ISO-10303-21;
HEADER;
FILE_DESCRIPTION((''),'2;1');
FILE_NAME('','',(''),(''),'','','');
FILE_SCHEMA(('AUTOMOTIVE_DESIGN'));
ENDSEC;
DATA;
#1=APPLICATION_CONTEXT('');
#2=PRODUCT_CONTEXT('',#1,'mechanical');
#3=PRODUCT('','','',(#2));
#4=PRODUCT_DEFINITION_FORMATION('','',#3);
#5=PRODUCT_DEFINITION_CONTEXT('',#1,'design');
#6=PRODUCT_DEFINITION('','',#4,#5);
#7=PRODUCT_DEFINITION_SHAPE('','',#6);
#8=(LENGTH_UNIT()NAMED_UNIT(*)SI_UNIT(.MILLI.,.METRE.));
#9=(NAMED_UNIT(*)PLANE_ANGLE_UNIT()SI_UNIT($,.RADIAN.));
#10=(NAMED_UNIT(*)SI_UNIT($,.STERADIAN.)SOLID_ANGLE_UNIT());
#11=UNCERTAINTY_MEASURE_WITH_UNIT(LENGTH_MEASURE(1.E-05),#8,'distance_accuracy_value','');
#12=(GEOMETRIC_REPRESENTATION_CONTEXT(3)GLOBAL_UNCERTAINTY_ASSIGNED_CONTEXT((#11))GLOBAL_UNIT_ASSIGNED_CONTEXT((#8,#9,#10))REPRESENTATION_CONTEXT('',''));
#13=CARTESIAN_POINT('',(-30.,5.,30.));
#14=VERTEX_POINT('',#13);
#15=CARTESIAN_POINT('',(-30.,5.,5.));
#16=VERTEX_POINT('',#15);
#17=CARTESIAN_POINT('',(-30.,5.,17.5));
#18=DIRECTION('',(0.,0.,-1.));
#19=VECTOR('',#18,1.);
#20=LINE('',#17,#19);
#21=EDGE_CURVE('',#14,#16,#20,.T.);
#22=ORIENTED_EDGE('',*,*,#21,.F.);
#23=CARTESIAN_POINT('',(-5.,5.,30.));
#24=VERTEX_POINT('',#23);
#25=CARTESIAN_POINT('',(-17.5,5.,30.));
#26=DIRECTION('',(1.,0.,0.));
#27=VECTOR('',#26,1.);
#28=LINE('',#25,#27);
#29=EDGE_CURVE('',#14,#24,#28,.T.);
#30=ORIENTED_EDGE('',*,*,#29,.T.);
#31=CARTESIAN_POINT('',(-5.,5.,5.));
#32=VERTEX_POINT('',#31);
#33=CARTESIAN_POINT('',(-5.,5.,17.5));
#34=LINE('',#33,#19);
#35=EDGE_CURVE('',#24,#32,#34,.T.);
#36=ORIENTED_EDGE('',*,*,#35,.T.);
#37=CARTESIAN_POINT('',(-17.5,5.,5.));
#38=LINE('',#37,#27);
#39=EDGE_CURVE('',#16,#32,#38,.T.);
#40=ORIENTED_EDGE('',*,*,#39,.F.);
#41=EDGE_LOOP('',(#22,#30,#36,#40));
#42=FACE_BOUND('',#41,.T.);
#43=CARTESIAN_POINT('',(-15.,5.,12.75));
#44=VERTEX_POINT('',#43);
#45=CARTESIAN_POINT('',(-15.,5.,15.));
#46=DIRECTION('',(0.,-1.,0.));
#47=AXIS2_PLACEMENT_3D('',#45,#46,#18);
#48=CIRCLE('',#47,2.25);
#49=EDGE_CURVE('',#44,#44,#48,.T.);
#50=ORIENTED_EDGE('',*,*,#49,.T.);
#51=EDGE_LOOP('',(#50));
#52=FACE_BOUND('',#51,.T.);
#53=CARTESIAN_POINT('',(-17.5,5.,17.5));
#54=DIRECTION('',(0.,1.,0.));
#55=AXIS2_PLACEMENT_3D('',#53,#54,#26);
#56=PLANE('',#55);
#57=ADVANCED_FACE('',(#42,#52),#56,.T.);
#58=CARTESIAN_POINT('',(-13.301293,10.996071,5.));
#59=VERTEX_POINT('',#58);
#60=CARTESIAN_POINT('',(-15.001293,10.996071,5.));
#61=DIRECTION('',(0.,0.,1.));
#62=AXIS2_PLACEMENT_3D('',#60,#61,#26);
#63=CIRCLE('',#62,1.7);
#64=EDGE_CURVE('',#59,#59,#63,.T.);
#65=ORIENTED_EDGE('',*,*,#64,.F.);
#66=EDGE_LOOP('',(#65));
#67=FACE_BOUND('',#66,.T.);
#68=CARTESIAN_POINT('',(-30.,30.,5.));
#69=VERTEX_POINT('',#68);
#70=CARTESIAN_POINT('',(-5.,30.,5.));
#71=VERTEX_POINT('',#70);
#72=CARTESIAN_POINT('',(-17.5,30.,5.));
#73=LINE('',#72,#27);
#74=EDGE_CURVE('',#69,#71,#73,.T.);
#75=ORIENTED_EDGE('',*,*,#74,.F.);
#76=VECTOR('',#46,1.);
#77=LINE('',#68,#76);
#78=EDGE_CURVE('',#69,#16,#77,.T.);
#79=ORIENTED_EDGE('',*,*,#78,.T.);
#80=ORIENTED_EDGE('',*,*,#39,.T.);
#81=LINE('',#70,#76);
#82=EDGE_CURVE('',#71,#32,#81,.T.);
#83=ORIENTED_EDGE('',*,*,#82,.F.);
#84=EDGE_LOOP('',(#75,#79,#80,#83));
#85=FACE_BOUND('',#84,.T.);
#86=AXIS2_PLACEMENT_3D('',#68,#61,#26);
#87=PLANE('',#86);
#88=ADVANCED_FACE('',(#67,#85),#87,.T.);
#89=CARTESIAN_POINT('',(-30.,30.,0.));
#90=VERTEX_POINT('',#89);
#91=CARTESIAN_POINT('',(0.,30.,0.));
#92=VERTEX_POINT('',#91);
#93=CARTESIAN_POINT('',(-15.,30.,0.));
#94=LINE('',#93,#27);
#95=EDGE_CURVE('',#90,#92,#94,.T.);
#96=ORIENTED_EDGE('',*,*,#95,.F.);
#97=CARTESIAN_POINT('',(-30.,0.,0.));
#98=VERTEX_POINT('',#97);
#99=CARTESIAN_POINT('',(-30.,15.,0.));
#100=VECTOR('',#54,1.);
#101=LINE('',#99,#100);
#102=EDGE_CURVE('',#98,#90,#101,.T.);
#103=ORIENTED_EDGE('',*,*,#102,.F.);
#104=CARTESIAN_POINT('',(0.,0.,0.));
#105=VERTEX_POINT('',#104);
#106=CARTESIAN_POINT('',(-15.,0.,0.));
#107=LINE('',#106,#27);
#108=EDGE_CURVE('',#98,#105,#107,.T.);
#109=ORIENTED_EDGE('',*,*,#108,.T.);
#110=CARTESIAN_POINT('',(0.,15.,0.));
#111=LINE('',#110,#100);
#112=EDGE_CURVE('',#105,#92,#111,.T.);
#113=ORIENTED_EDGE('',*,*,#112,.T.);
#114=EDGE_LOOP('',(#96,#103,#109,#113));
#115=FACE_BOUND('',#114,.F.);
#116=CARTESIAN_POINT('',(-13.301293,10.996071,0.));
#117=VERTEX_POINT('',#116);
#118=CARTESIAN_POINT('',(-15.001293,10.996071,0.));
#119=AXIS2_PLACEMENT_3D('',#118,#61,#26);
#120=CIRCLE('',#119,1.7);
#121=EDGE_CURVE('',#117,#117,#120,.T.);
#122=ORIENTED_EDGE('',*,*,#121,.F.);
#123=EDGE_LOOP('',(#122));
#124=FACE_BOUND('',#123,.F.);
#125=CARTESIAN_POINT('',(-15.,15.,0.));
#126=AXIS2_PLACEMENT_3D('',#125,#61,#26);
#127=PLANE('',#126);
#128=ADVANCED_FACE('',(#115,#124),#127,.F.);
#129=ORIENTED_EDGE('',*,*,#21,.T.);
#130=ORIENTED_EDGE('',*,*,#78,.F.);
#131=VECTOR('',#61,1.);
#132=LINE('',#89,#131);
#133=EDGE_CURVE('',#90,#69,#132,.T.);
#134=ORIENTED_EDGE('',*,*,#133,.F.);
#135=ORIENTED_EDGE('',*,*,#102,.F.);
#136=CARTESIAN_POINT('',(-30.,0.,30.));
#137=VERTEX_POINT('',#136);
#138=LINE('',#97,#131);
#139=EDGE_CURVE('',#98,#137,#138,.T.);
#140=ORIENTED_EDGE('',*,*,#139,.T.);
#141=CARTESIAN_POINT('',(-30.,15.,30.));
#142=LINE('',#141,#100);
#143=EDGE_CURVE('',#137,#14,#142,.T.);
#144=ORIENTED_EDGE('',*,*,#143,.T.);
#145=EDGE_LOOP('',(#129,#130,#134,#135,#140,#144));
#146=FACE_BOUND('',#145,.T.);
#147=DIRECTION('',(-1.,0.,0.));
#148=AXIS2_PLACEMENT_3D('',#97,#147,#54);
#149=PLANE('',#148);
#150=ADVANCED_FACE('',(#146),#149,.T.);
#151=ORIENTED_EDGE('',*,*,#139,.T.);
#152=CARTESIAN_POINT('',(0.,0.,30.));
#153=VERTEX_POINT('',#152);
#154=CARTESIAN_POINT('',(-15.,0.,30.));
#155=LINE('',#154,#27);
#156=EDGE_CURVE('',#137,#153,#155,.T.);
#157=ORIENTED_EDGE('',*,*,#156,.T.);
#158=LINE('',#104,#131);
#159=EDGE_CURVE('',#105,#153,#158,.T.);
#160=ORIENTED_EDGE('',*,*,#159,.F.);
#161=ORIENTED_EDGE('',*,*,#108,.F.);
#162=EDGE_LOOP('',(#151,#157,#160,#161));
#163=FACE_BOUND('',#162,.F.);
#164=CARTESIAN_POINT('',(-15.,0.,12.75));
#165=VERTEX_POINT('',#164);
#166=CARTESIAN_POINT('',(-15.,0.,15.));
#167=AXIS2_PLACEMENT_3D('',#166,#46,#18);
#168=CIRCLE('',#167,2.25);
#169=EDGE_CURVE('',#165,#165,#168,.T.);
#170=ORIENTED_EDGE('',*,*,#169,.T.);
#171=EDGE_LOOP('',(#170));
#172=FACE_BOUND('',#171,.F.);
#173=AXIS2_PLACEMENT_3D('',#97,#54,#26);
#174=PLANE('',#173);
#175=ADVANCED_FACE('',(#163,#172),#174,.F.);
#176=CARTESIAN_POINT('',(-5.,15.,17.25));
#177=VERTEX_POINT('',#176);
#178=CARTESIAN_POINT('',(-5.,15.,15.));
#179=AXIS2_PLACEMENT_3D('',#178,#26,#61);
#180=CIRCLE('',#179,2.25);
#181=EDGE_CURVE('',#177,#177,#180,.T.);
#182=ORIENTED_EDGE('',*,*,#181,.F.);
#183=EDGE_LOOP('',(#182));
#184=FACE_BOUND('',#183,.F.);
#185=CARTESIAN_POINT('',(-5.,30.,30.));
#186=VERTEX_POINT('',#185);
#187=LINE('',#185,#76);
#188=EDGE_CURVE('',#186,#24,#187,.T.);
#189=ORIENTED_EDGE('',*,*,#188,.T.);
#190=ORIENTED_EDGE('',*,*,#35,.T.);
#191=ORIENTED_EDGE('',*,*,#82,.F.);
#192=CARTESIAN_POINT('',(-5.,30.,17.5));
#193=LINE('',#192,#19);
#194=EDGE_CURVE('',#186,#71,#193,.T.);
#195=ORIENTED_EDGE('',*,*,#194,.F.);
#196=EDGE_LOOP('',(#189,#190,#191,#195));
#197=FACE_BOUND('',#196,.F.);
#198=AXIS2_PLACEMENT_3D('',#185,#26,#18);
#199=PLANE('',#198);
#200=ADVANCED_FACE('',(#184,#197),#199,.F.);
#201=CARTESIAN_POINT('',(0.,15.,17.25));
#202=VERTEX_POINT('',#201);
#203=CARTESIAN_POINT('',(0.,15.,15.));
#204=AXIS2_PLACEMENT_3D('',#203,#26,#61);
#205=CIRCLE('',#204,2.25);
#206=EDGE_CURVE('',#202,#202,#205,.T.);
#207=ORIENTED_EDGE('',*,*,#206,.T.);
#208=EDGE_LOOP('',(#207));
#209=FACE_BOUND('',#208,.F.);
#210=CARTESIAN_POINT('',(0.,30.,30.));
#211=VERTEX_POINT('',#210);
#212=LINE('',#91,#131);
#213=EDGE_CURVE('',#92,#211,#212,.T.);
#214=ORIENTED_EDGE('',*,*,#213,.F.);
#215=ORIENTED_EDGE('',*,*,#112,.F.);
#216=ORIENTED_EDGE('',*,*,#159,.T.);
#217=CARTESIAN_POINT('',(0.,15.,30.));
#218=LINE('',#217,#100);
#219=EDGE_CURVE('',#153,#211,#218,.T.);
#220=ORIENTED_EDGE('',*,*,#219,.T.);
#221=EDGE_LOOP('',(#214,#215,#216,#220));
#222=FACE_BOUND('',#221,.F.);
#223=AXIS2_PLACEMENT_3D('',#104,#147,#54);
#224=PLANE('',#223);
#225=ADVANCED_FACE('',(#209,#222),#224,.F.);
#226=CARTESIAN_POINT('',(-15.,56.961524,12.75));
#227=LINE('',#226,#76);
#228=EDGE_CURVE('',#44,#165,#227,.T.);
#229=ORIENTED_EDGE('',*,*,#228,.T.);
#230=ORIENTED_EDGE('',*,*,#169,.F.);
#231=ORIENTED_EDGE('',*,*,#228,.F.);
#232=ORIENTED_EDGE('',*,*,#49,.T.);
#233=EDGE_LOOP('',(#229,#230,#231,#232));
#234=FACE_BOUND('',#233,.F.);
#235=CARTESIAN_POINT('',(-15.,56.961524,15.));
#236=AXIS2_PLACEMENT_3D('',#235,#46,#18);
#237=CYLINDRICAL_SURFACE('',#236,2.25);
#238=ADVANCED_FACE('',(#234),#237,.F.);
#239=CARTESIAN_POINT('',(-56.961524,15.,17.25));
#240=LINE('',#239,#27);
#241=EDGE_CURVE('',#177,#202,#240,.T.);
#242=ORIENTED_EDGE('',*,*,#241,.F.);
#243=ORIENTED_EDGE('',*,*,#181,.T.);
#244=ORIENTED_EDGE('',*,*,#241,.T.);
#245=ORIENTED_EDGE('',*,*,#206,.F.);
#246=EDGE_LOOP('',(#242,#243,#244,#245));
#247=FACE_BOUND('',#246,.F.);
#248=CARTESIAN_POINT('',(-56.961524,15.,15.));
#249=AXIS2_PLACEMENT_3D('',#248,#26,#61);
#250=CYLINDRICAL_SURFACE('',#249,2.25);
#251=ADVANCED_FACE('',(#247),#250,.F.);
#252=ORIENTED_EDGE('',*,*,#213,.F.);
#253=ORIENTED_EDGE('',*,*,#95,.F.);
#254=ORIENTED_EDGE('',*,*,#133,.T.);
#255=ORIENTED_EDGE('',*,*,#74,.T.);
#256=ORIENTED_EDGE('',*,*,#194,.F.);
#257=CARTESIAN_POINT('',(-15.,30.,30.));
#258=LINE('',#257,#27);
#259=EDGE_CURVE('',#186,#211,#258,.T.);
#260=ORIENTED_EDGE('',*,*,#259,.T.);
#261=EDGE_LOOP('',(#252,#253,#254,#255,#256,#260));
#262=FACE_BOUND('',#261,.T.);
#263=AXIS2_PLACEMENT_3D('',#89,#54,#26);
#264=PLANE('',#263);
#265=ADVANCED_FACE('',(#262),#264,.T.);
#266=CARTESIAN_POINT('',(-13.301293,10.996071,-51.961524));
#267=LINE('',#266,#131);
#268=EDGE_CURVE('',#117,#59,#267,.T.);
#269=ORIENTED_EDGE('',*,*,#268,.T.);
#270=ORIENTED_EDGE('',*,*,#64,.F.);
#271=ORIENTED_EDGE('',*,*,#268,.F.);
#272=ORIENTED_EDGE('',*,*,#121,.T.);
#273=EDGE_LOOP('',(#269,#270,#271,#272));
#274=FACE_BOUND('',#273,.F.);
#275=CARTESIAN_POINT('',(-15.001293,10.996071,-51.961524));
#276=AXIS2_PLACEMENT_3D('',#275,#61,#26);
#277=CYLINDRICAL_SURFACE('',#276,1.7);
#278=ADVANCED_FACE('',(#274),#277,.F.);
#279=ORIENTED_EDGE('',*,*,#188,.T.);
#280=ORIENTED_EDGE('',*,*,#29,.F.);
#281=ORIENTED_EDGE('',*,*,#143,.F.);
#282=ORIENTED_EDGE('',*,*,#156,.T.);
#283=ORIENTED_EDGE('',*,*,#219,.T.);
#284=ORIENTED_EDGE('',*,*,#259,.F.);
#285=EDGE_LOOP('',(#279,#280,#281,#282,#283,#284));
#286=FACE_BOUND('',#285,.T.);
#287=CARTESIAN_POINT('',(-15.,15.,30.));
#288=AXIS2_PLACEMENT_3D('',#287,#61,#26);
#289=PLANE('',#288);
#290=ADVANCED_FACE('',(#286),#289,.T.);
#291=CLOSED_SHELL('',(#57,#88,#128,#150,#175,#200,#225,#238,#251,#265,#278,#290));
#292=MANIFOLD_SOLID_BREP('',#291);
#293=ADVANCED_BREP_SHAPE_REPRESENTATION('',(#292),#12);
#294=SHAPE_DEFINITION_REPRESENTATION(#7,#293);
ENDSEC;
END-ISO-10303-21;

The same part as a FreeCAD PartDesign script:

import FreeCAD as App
import Part
import Sketcher

V = App.Vector


def add_polygon(sketch, points):
    """Adds a closed chain of lines whose ends are joined by coincident constraints."""
    first, n = sketch.GeometryCount, len(points)
    for a, b in zip(points, points[1:] + points[:1]):
        sketch.addGeometry(Part.LineSegment(App.Vector(*a, 0), App.Vector(*b, 0)), False)
    for i in range(n):
        sketch.addConstraint(Sketcher.Constraint("Coincident", first + i, 2, first + (i + 1) % n, 1))

doc = App.newDocument("Part")
body = doc.addObject("PartDesign::Body", "Body")

sketch1 = doc.addObject("Sketcher::SketchObject", "Sketch")
body.addObject(sketch1)
sketch1.AttachmentSupport = (doc.XY_Plane, [""])
sketch1.MapMode = "FlatFace"
add_polygon(sketch1, [(-30, 30), (-30, 0), (0, 0), (0, 30)])
sketch1.addConstraint([
    Sketcher.Constraint("Vertical", 0),
    Sketcher.Constraint("Horizontal", 1),
    Sketcher.Constraint("Vertical", 2),
    Sketcher.Constraint("Horizontal", 3),
    Sketcher.Constraint("Coincident", 1, 2, -1, 1),
    Sketcher.Constraint("Equal", 3, 0),
    Sketcher.Constraint("DistanceX", 1, 1, 1, 2, 30.0),
])
pad1 = doc.addObject("PartDesign::Pad", "Pad")
body.addObject(pad1)
pad1.Profile = sketch1
pad1.Length = 30

sketch2 = doc.addObject("Sketcher::SketchObject", "Sketch001")
body.addObject(sketch2)
sketch2.AttachmentSupport = (doc.XZ_Plane, [""])
sketch2.MapMode = "FlatFace"
sketch2.AttachmentOffset = App.Placement(V(0, 0, -30), App.Rotation())
add_polygon(sketch2, [(-30, 5), (-30, 30), (-5, 30), (-5, 5)])
sketch2.addConstraint([
    Sketcher.Constraint("Vertical", 0),
    Sketcher.Constraint("Horizontal", 1),
    Sketcher.Constraint("Vertical", 2),
    Sketcher.Constraint("Horizontal", 3),
    Sketcher.Constraint("Equal", 3, 0),
    Sketcher.Constraint("DistanceX", 1, 1, 1, 2, 25.0),
    Sketcher.Constraint("DistanceX", 0, 2, -1, 1, 30.0),
    Sketcher.Constraint("DistanceY", -1, 1, 0, 2, 30.0),
])
pocket1 = doc.addObject("PartDesign::Pocket", "Pocket")
body.addObject(pocket1)
pocket1.Profile = sketch2
pocket1.Length = 25
pocket1.Reversed = True

sketch3 = doc.addObject("Sketcher::SketchObject", "Sketch002")
body.addObject(sketch3)
sketch3.AttachmentSupport = (doc.YZ_Plane, [""])
sketch3.MapMode = "FlatFace"
sketch3.AttachmentOffset = App.Placement(V(0, 0, -5), App.Rotation())
sketch3.addGeometry(Part.Circle(V(15, 15, 0), V(0, 0, 1), 2.2), False)
sketch3.addConstraint([
    Sketcher.Constraint("Diameter", 0, 4.5),
    Sketcher.Constraint("DistanceX", -1, 1, 0, 3, 15.0),
    Sketcher.Constraint("DistanceY", -1, 1, 0, 3, 15.0),
])
doc.recompute()
hole = doc.addObject("PartDesign::Hole", "Hole")
body.addObject(hole)
hole.Profile = sketch3
hole.ThreadType = "None"
hole.Diameter = 4.5
hole.DepthType = "ThroughAll"
hole.Reversed = True

sketch4 = doc.addObject("Sketcher::SketchObject", "Sketch003")
body.addObject(sketch4)
sketch4.AttachmentSupport = (doc.XZ_Plane, [""])
sketch4.MapMode = "FlatFace"
sketch4.AttachmentOffset = App.Placement(V(0, 0, -5), App.Rotation())
sketch4.addGeometry(Part.Circle(V(-15, 15, 0), V(0, 0, 1), 2.2), False)
sketch4.addConstraint([
    Sketcher.Constraint("Diameter", 0, 4.5),
    Sketcher.Constraint("DistanceX", 0, 3, -1, 1, 15.0),
    Sketcher.Constraint("DistanceY", -1, 1, 0, 3, 15.0),
])
doc.recompute()
hole2 = doc.addObject("PartDesign::Hole", "Hole001")
body.addObject(hole2)
hole2.Profile = sketch4
hole2.ThreadType = "None"
hole2.Diameter = 4.5
hole2.DepthType = "ThroughAll"
hole2.Reversed = True

sketch5 = doc.addObject("Sketcher::SketchObject", "Sketch004")
body.addObject(sketch5)
sketch5.AttachmentSupport = (doc.XY_Plane, [""])
sketch5.MapMode = "FlatFace"
sketch5.addGeometry(Part.Circle(V(-15, 11, 0), V(0, 0, 1), 1.7), False)
sketch5.addConstraint([
    Sketcher.Constraint("Diameter", 0, 3.4),
    Sketcher.Constraint("DistanceY", -1, 1, 0, 3, 10.996071),
    Sketcher.Constraint("DistanceX", 0, 3, -1, 1, 15.001293),
])
doc.recompute()
hole3 = doc.addObject("PartDesign::Hole", "Hole002")
body.addObject(hole3)
hole3.Profile = sketch5
hole3.ThreadType = "None"
hole3.Diameter = 3.4
hole3.DepthType = "ThroughAll"
hole3.Reversed = True

doc.recompute()
